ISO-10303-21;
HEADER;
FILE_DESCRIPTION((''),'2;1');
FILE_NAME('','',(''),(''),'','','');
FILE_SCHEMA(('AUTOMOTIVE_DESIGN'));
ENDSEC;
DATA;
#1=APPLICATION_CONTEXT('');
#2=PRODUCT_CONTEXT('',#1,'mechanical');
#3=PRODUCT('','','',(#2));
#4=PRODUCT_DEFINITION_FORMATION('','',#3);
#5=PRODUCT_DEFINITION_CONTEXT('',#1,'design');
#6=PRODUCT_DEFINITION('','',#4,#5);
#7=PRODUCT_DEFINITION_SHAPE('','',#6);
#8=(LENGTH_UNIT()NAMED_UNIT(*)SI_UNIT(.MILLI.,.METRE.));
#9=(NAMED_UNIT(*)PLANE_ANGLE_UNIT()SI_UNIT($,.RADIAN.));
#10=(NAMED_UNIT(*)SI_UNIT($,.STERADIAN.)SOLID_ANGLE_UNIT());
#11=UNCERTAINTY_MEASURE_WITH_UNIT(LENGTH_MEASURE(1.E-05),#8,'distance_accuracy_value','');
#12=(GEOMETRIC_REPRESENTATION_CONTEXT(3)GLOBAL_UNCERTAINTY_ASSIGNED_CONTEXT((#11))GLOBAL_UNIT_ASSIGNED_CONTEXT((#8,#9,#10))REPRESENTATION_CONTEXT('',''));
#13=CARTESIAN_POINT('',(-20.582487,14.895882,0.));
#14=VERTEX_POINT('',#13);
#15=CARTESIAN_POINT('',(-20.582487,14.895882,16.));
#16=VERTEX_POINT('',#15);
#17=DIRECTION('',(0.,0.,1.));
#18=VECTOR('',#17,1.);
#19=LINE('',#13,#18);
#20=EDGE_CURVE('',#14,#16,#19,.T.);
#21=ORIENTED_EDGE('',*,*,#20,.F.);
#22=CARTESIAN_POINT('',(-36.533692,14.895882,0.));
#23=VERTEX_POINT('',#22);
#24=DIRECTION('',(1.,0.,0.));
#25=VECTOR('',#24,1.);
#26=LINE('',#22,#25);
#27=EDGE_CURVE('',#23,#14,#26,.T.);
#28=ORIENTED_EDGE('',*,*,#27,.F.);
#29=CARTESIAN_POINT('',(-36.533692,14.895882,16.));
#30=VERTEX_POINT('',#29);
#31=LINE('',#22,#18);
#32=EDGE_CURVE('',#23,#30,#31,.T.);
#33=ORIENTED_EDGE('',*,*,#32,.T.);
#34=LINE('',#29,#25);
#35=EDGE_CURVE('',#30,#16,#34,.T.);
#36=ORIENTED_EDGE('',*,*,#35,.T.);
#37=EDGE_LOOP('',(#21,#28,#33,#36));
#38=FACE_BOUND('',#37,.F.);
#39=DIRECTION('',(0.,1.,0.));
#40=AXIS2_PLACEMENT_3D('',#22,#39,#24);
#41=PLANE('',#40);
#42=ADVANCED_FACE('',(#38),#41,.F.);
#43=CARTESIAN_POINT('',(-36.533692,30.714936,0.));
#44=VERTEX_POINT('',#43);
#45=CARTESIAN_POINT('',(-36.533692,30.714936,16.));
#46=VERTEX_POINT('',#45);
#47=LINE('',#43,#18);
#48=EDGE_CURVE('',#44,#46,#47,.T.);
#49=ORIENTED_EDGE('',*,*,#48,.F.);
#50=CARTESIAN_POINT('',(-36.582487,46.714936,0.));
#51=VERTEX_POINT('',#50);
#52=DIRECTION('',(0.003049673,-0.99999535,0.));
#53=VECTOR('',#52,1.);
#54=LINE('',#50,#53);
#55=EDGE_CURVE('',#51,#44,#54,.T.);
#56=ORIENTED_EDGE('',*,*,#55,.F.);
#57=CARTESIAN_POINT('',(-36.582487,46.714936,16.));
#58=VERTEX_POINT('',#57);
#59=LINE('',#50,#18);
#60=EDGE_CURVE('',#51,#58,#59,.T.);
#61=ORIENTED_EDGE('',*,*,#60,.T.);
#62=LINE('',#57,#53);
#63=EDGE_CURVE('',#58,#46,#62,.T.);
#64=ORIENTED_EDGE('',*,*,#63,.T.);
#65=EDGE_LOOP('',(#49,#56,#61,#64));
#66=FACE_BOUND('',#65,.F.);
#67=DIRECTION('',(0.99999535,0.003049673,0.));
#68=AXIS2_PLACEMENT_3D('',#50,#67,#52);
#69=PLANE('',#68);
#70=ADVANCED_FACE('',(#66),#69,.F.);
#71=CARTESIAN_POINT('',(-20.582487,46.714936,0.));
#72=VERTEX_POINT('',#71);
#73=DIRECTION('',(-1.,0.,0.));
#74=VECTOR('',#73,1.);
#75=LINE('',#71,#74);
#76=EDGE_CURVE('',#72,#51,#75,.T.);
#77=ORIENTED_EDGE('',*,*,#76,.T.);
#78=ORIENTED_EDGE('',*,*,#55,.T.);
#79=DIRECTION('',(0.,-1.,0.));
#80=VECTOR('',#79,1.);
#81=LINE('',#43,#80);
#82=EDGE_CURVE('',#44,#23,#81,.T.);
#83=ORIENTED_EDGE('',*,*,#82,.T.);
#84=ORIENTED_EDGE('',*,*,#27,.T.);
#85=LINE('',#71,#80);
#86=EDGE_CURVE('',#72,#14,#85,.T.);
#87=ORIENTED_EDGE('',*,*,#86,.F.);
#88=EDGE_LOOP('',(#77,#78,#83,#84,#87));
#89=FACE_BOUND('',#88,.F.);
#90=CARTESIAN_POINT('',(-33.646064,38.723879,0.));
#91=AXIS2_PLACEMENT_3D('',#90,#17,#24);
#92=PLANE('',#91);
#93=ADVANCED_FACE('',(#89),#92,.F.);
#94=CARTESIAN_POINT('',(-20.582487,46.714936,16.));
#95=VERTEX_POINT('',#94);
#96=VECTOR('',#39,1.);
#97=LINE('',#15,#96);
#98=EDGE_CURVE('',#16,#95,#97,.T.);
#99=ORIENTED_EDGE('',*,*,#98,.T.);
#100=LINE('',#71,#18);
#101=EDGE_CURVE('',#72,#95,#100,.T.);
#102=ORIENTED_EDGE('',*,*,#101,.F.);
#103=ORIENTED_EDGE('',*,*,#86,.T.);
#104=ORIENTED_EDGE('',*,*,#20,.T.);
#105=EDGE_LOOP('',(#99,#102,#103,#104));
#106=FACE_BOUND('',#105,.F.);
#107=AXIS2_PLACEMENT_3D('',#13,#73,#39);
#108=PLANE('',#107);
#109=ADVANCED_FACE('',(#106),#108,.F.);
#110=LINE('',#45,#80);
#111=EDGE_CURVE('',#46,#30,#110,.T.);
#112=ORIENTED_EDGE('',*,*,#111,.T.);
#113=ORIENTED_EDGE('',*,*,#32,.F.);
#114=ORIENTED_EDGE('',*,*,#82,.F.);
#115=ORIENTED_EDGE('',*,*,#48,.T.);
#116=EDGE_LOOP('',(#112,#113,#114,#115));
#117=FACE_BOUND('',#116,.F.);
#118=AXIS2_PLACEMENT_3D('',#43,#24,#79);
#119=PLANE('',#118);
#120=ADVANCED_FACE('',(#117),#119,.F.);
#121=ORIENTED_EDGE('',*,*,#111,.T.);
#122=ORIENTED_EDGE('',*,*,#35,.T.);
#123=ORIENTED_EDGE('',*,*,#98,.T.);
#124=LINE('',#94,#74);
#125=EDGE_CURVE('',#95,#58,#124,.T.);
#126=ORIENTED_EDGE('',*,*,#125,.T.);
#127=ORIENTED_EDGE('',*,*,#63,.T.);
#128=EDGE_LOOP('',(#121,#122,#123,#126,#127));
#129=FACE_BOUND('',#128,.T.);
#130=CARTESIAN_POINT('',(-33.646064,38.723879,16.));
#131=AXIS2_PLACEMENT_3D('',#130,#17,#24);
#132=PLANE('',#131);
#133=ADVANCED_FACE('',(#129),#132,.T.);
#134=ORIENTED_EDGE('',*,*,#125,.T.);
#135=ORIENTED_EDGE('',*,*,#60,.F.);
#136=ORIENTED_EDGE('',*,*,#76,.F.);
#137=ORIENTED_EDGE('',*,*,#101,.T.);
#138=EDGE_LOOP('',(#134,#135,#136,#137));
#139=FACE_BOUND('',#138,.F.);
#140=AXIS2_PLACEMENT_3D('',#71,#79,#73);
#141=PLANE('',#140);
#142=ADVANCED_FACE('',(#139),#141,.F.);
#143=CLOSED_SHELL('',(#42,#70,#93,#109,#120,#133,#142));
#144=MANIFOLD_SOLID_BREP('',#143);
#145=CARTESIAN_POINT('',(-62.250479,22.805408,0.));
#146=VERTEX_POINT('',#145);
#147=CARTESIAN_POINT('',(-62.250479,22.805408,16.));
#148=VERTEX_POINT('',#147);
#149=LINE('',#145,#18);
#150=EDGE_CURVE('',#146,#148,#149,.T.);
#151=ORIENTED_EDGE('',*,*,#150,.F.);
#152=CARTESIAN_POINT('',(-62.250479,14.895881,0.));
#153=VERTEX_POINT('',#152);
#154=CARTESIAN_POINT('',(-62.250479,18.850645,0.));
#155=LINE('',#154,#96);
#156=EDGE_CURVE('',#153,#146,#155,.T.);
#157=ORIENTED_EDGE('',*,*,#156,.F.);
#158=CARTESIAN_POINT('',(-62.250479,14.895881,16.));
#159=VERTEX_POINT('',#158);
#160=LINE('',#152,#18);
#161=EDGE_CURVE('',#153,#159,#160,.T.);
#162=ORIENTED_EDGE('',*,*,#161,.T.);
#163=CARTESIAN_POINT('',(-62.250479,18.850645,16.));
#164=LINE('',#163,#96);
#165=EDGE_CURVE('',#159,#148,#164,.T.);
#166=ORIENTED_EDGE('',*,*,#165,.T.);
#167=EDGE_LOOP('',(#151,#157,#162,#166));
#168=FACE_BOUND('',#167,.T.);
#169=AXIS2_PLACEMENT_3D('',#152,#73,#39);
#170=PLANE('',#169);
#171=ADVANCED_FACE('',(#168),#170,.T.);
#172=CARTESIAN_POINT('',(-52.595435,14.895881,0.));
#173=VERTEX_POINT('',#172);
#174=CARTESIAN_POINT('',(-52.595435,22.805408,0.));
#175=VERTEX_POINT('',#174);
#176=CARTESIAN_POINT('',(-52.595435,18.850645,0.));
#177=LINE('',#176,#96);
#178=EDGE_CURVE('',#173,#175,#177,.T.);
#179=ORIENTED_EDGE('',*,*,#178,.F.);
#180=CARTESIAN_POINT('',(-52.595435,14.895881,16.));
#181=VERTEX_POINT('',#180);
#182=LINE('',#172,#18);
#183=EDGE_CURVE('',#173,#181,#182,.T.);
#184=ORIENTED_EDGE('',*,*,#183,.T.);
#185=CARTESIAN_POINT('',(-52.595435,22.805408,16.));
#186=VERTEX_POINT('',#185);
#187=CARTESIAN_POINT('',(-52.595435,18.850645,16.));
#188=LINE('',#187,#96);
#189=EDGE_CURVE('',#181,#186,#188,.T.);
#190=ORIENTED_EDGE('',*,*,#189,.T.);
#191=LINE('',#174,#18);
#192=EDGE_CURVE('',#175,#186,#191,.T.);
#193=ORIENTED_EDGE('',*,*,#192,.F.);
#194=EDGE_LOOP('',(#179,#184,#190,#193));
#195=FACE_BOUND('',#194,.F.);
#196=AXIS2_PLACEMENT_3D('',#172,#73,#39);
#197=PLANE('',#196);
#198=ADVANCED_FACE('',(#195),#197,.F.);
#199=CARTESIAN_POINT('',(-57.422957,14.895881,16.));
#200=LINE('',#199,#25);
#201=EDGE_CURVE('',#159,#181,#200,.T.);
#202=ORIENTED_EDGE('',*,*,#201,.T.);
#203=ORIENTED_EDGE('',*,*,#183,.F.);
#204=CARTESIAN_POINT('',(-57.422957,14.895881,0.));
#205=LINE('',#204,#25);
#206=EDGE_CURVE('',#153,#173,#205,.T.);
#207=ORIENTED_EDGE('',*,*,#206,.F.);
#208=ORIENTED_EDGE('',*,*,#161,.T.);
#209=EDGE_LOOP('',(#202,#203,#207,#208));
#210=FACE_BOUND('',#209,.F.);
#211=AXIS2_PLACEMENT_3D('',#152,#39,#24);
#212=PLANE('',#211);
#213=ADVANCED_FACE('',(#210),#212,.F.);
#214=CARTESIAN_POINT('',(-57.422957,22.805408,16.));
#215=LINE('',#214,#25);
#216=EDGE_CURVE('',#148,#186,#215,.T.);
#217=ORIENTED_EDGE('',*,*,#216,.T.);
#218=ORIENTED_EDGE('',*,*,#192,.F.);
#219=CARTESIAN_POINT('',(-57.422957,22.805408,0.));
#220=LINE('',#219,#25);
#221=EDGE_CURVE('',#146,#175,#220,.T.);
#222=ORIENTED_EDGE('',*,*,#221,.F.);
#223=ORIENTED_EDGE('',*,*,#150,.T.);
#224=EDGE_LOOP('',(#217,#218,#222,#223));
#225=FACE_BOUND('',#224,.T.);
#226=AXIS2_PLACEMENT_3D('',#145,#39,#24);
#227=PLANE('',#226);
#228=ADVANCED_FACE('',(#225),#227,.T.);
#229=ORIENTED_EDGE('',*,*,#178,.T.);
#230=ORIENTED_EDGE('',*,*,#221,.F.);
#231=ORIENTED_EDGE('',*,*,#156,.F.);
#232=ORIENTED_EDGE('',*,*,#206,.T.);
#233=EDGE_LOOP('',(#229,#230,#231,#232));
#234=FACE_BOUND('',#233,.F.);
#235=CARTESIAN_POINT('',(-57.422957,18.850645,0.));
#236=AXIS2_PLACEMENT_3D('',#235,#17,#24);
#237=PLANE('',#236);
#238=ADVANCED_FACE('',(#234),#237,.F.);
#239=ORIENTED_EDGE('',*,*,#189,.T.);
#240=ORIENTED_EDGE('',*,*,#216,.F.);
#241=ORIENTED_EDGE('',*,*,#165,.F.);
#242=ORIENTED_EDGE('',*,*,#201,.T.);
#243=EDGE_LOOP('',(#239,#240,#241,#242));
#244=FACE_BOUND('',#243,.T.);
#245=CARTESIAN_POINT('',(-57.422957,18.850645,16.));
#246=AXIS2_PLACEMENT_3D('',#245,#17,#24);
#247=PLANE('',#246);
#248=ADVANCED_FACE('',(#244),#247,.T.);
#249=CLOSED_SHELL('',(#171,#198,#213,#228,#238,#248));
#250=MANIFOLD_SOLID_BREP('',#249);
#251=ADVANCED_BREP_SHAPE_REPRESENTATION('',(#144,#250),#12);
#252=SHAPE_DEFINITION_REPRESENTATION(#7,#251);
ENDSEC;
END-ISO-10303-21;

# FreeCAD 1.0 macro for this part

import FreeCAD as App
import Part
import Sketcher

doc = App.newDocument("Part")
body = doc.addObject("PartDesign::Body", "Body")
body.AllowCompound = True

sketch1 = body.newObject("Sketcher::SketchObject", "Sketch")
sketch1.AttachmentSupport = (doc.getObject("XY_Plane"), [""])
sketch1.MapMode = "FlatFace"
sketch1.addGeometry(Part.LineSegment(App.Vector(-37, 47, 0), App.Vector(-37, 31, 0)), False)
sketch1.addGeometry(Part.LineSegment(App.Vector(-37, 31, 0), App.Vector(-37, 15, 0)), False)
sketch1.addGeometry(Part.LineSegment(App.Vector(-37, 15, 0), App.Vector(-21, 15, 0)), False)
sketch1.addGeometry(Part.LineSegment(App.Vector(-21, 15, 0), App.Vector(-21, 47, 0)), False)
sketch1.addGeometry(Part.LineSegment(App.Vector(-21, 47, 0), App.Vector(-37, 47, 0)), False)
sketch1.addGeometry(Part.LineSegment(App.Vector(-62, 23, 0), App.Vector(-62, 15, 0)), False)
sketch1.addGeometry(Part.LineSegment(App.Vector(-62, 15, 0), App.Vector(-53, 15, 0)), False)
sketch1.addGeometry(Part.LineSegment(App.Vector(-53, 15, 0), App.Vector(-53, 23, 0)), False)
sketch1.addGeometry(Part.LineSegment(App.Vector(-53, 23, 0), App.Vector(-62, 23, 0)), False)
sketch1.addConstraint(Sketcher.Constraint("Coincident", 0, 2, 1, 1))
sketch1.addConstraint(Sketcher.Constraint("Coincident", 1, 2, 2, 1))
sketch1.addConstraint(Sketcher.Constraint("Coincident", 2, 2, 3, 1))
sketch1.addConstraint(Sketcher.Constraint("Coincident", 3, 2, 4, 1))
sketch1.addConstraint(Sketcher.Constraint("Coincident", 4, 2, 0, 1))
sketch1.addConstraint(Sketcher.Constraint("Coincident", 5, 2, 6, 1))
sketch1.addConstraint(Sketcher.Constraint("Coincident", 6, 2, 7, 1))
sketch1.addConstraint(Sketcher.Constraint("Coincident", 7, 2, 8, 1))
sketch1.addConstraint(Sketcher.Constraint("Coincident", 8, 2, 5, 1))
sketch1.addConstraint(Sketcher.Constraint("Vertical", 1))
sketch1.addConstraint(Sketcher.Constraint("Horizontal", 2))
sketch1.addConstraint(Sketcher.Constraint("Vertical", 3))
sketch1.addConstraint(Sketcher.Constraint("Horizontal", 4))
sketch1.addConstraint(Sketcher.Constraint("Vertical", 5))
sketch1.addConstraint(Sketcher.Constraint("Horizontal", 6))
sketch1.addConstraint(Sketcher.Constraint("Vertical", 7))
sketch1.addConstraint(Sketcher.Constraint("Horizontal", 8))
sketch1.addConstraint(Sketcher.Constraint("Horizontal", 2, 2, 5, 2))
sketch1.addConstraint(Sketcher.Constraint("DistanceX", 4, 2, 4, 1, 16.0))
sketch1.addConstraint(Sketcher.Constraint("DistanceY", 0, 2, 3, 2, 16.0))
sketch1.addConstraint(Sketcher.Constraint("DistanceX", 2, 1, 2, 2, 15.951205))
sketch1.addConstraint(Sketcher.Constraint("DistanceX", 6, 1, 6, 2, 9.655044))
sketch1.addConstraint(Sketcher.Constraint("DistanceY", 1, 2, 1, 1, 15.819054))
sketch1.addConstraint(Sketcher.Constraint("DistanceY", 5, 2, 5, 1, 7.909527))
sketch1.addConstraint(Sketcher.Constraint("DistanceX", 5, 2, -1, 1, 62.250479))
sketch1.addConstraint(Sketcher.Constraint("DistanceY", -1, 1, 5, 2, 14.895881))
sketch1.addConstraint(Sketcher.Constraint("DistanceX", 5, 2, 4, 2, 25.667992))
pad1 = body.newObject("PartDesign::Pad", "Pad")
pad1.Profile = sketch1
pad1.Length = 16

sketch2 = body.newObject("Sketcher::SketchObject", "Sketch001")
sketch2.AttachmentSupport = (doc.getObject("XY_Plane"), [""])
sketch2.MapMode = "FlatFace"
sketch2.addGeometry(Part.LineSegment(App.Vector(-37, 31, 0), App.Vector(-37, 15, 0)), False)
sketch2.addGeometry(Part.LineSegment(App.Vector(-37, 15, 0), App.Vector(-21, 15, 0)), False)
sketch2.addGeometry(Part.LineSegment(App.Vector(-21, 15, 0), App.Vector(-21, 31, 0)), False)
sketch2.addGeometry(Part.LineSegment(App.Vector(-21, 31, 0), App.Vector(-37, 31, 0)), False)
sketch2.addConstraint(Sketcher.Constraint("Coincident", 0, 2, 1, 1))
sketch2.addConstraint(Sketcher.Constraint("Coincident", 1, 2, 2, 1))
sketch2.addConstraint(Sketcher.Constraint("Coincident", 2, 2, 3, 1))
sketch2.addConstraint(Sketcher.Constraint("Coincident", 3, 2, 0, 1))
sketch2.addConstraint(Sketcher.Constraint("Vertical", 0))
sketch2.addConstraint(Sketcher.Constraint("Horizontal", 1))
sketch2.addConstraint(Sketcher.Constraint("Vertical", 2))
sketch2.addConstraint(Sketcher.Constraint("Horizontal", 3))
sketch2.addConstraint(Sketcher.Constraint("DistanceX", 1, 1, 1, 2, 15.951205))
sketch2.addConstraint(Sketcher.Constraint("DistanceY", 0, 2, 0, 1, 15.819054))
sketch2.addConstraint(Sketcher.Constraint("DistanceX", 0, 2, -1, 1, 36.533692))
sketch2.addConstraint(Sketcher.Constraint("DistanceY", -1, 1, 0, 2, 14.895882))
pad2 = body.newObject("PartDesign::Pad", "Pad001")
pad2.Profile = sketch2
pad2.Length = 16

sketch3 = body.newObject("Sketcher::SketchObject", "Sketch002")
sketch3.AttachmentSupport = (doc.getObject("XY_Plane"), [""])
sketch3.MapMode = "FlatFace"
sketch3.addGeometry(Part.LineSegment(App.Vector(-62, 23, 0), App.Vector(-62, 15, 0)), False)
sketch3.addGeometry(Part.LineSegment(App.Vector(-62, 15, 0), App.Vector(-53, 15, 0)), False)
sketch3.addGeometry(Part.LineSegment(App.Vector(-53, 15, 0), App.Vector(-53, 23, 0)), False)
sketch3.addGeometry(Part.LineSegment(App.Vector(-53, 23, 0), App.Vector(-62, 23, 0)), False)
sketch3.addConstraint(Sketcher.Constraint("Coincident", 0, 2, 1, 1))
sketch3.addConstraint(Sketcher.Constraint("Coincident", 1, 2, 2, 1))
sketch3.addConstraint(Sketcher.Constraint("Coincident", 2, 2, 3, 1))
sketch3.addConstraint(Sketcher.Constraint("Coincident", 3, 2, 0, 1))
sketch3.addConstraint(Sketcher.Constraint("Vertical", 0))
sketch3.addConstraint(Sketcher.Constraint("Horizontal", 1))
sketch3.addConstraint(Sketcher.Constraint("Vertical", 2))
sketch3.addConstraint(Sketcher.Constraint("Horizontal", 3))
sketch3.addConstraint(Sketcher.Constraint("DistanceX", 1, 1, 1, 2, 9.655044))
sketch3.addConstraint(Sketcher.Constraint("DistanceY", 0, 2, 0, 1, 7.909527))
sketch3.addConstraint(Sketcher.Constraint("DistanceX", 0, 2, -1, 1, 62.250479))
sketch3.addConstraint(Sketcher.Constraint("DistanceY", -1, 1, 0, 2, 14.895881))
pad3 = body.newObject("PartDesign::Pad", "Pad002")
pad3.Profile = sketch3
pad3.Length = 16

doc.recompute()
